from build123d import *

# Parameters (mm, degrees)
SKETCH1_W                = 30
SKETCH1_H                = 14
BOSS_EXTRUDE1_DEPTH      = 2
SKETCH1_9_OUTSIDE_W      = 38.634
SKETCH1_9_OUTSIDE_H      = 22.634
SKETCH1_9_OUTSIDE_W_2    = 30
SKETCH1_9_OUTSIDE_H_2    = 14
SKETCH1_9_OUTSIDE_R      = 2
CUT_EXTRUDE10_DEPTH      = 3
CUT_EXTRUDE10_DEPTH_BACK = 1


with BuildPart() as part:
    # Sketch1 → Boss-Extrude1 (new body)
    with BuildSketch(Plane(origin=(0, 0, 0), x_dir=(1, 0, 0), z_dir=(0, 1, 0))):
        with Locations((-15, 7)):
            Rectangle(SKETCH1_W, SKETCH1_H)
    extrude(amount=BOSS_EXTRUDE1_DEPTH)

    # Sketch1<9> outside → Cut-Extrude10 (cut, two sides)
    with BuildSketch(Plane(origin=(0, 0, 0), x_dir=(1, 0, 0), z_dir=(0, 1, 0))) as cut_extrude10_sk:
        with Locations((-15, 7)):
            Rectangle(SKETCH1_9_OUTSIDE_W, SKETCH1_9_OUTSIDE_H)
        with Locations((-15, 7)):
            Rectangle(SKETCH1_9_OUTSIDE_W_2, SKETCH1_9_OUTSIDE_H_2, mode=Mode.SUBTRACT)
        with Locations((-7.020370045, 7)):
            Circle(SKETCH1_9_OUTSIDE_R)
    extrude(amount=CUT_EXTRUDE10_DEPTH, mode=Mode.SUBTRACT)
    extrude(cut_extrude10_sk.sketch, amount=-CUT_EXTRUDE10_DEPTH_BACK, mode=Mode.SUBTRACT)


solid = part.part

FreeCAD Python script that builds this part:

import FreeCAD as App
import Part
import Sketcher


def add_polygon(sketch, points):
    """Adds a closed chain of lines whose ends are joined by coincident constraints."""
    first, n = sketch.GeometryCount, len(points)
    for a, b in zip(points, points[1:] + points[:1]):
        sketch.addGeometry(Part.LineSegment(App.Vector(*a, 0), App.Vector(*b, 0)), False)
    for i in range(n):
        sketch.addConstraint(Sketcher.Constraint("Coincident", first + i, 2, first + (i + 1) % n, 1))

doc = App.newDocument("Part")
body = doc.addObject("PartDesign::Body", "Body")

# Sketch on XZ plane
sketch1 = body.newObject("Sketcher::SketchObject", "Sketch")
sketch1.AttachmentSupport = (doc.getObject("XZ_Plane"), [""])
sketch1.MapMode = "FlatFace"
add_polygon(sketch1, [(-30, -14), (-30, 0), (0, 0), (0, -14)])  # lines 0-3
sketch1.addConstraint(Sketcher.Constraint("Vertical", 0))
sketch1.addConstraint(Sketcher.Constraint("Horizontal", 1))
sketch1.addConstraint(Sketcher.Constraint("Vertical", 2))
sketch1.addConstraint(Sketcher.Constraint("Horizontal", 3))
sketch1.addConstraint(Sketcher.Constraint("Coincident", 1, 2, -1, 1))
sketch1.addConstraint(Sketcher.Constraint("DistanceX", 1, 1, 1, 2, 30.0))
sketch1.addConstraint(Sketcher.Constraint("DistanceY", 0, 1, 0, 2, 14.0))
pad1 = body.newObject("PartDesign::Pad", "Pad")
pad1.Profile = sketch1
pad1.Length = 2
pad1.Reversed = True

# Sketch on XZ plane
sketch2 = body.newObject("Sketcher::SketchObject", "Sketch001")
sketch2.AttachmentSupport = (doc.getObject("XZ_Plane"), [""])
sketch2.MapMode = "FlatFace"
add_polygon(sketch2, [(-34.317, -18.317), (-34.317, 4.317), (4.317, 4.317), (4.317, -18.317)])  # lines 0-3
add_polygon(sketch2, [(0, 0), (-30, 0), (-30, -14), (0, -14)])  # lines 4-7
sketch2.addGeometry(Part.Circle(App.Vector(-7.02037, -7, 0), App.Vector(0, 0, 1), 2), False)  # 8
sketch2.addConstraint(Sketcher.Constraint("Vertical", 0))
sketch2.addConstraint(Sketcher.Constraint("Horizontal", 1))
sketch2.addConstraint(Sketcher.Constraint("Vertical", 2))
sketch2.addConstraint(Sketcher.Constraint("Horizontal", 3))
sketch2.addConstraint(Sketcher.Constraint("Horizontal", 4))
sketch2.addConstraint(Sketcher.Constraint("Vertical", 5))
sketch2.addConstraint(Sketcher.Constraint("Horizontal", 6))
sketch2.addConstraint(Sketcher.Constraint("Vertical", 7))
sketch2.addConstraint(Sketcher.Constraint("Coincident", 7, 2, -1, 1))
sketch2.addConstraint(Sketcher.Constraint("Diameter", 8, 4.0))
sketch2.addConstraint(Sketcher.Constraint("DistanceX", 4, 2, 4, 1, 30.0))
sketch2.addConstraint(Sketcher.Constraint("DistanceY", 5, 2, 5, 1, 14.0))
sketch2.addConstraint(Sketcher.Constraint("DistanceY", 8, 3, -1, 1, 7.0))
sketch2.addConstraint(Sketcher.Constraint("DistanceX", 1, 1, 1, 2, 38.634))
sketch2.addConstraint(Sketcher.Constraint("DistanceY", 0, 1, 0, 2, 22.634))
sketch2.addConstraint(Sketcher.Constraint("DistanceX", 0, 2, -1, 1, 34.317))
sketch2.addConstraint(Sketcher.Constraint("DistanceY", -1, 1, 0, 2, 4.317))
sketch2.addConstraint(Sketcher.Constraint("DistanceX", 8, 3, -1, 1, 7.02037))
pocket1 = body.newObject("PartDesign::Pocket", "Pocket")
pocket1.Profile = sketch2
pocket1.Type = "ThroughAll"
pocket1.Midplane = True

doc.recompute()
